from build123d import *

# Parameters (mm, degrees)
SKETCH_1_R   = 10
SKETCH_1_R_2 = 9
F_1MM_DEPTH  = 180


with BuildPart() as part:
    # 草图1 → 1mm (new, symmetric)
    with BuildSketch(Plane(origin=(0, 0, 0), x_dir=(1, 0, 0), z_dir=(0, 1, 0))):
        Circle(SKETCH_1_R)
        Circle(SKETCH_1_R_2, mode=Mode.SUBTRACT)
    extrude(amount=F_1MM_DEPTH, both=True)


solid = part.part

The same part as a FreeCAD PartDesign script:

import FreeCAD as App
import Part
import Sketcher

doc = App.newDocument("Part")
body = doc.addObject("PartDesign::Body", "Body")

sketch1 = doc.addObject("Sketcher::SketchObject", "Sketch")
body.addObject(sketch1)
sketch1.AttachmentSupport = (doc.XZ_Plane, [""])
sketch1.MapMode = "FlatFace"
sketch1.addGeometry([
    Part.Circle(App.Vector(0, 0, 0), App.Vector(0, 0, 1), 10),
    Part.Circle(App.Vector(0, 0, 0), App.Vector(0, 0, 1), 9),
], False)
sketch1.addConstraint([
    Sketcher.Constraint("Coincident", 0, 3, -1, 1),
    Sketcher.Constraint("Coincident", 1, 3, -1, 1),
    Sketcher.Constraint("Diameter", 0, 20.0),
    Sketcher.Constraint("Diameter", 1, 18.0),
])
pad1 = doc.addObject("PartDesign::Pad", "Pad")
body.addObject(pad1)
pad1.Profile = sketch1
pad1.Length = 360
pad1.Midplane = True

doc.recompute()
